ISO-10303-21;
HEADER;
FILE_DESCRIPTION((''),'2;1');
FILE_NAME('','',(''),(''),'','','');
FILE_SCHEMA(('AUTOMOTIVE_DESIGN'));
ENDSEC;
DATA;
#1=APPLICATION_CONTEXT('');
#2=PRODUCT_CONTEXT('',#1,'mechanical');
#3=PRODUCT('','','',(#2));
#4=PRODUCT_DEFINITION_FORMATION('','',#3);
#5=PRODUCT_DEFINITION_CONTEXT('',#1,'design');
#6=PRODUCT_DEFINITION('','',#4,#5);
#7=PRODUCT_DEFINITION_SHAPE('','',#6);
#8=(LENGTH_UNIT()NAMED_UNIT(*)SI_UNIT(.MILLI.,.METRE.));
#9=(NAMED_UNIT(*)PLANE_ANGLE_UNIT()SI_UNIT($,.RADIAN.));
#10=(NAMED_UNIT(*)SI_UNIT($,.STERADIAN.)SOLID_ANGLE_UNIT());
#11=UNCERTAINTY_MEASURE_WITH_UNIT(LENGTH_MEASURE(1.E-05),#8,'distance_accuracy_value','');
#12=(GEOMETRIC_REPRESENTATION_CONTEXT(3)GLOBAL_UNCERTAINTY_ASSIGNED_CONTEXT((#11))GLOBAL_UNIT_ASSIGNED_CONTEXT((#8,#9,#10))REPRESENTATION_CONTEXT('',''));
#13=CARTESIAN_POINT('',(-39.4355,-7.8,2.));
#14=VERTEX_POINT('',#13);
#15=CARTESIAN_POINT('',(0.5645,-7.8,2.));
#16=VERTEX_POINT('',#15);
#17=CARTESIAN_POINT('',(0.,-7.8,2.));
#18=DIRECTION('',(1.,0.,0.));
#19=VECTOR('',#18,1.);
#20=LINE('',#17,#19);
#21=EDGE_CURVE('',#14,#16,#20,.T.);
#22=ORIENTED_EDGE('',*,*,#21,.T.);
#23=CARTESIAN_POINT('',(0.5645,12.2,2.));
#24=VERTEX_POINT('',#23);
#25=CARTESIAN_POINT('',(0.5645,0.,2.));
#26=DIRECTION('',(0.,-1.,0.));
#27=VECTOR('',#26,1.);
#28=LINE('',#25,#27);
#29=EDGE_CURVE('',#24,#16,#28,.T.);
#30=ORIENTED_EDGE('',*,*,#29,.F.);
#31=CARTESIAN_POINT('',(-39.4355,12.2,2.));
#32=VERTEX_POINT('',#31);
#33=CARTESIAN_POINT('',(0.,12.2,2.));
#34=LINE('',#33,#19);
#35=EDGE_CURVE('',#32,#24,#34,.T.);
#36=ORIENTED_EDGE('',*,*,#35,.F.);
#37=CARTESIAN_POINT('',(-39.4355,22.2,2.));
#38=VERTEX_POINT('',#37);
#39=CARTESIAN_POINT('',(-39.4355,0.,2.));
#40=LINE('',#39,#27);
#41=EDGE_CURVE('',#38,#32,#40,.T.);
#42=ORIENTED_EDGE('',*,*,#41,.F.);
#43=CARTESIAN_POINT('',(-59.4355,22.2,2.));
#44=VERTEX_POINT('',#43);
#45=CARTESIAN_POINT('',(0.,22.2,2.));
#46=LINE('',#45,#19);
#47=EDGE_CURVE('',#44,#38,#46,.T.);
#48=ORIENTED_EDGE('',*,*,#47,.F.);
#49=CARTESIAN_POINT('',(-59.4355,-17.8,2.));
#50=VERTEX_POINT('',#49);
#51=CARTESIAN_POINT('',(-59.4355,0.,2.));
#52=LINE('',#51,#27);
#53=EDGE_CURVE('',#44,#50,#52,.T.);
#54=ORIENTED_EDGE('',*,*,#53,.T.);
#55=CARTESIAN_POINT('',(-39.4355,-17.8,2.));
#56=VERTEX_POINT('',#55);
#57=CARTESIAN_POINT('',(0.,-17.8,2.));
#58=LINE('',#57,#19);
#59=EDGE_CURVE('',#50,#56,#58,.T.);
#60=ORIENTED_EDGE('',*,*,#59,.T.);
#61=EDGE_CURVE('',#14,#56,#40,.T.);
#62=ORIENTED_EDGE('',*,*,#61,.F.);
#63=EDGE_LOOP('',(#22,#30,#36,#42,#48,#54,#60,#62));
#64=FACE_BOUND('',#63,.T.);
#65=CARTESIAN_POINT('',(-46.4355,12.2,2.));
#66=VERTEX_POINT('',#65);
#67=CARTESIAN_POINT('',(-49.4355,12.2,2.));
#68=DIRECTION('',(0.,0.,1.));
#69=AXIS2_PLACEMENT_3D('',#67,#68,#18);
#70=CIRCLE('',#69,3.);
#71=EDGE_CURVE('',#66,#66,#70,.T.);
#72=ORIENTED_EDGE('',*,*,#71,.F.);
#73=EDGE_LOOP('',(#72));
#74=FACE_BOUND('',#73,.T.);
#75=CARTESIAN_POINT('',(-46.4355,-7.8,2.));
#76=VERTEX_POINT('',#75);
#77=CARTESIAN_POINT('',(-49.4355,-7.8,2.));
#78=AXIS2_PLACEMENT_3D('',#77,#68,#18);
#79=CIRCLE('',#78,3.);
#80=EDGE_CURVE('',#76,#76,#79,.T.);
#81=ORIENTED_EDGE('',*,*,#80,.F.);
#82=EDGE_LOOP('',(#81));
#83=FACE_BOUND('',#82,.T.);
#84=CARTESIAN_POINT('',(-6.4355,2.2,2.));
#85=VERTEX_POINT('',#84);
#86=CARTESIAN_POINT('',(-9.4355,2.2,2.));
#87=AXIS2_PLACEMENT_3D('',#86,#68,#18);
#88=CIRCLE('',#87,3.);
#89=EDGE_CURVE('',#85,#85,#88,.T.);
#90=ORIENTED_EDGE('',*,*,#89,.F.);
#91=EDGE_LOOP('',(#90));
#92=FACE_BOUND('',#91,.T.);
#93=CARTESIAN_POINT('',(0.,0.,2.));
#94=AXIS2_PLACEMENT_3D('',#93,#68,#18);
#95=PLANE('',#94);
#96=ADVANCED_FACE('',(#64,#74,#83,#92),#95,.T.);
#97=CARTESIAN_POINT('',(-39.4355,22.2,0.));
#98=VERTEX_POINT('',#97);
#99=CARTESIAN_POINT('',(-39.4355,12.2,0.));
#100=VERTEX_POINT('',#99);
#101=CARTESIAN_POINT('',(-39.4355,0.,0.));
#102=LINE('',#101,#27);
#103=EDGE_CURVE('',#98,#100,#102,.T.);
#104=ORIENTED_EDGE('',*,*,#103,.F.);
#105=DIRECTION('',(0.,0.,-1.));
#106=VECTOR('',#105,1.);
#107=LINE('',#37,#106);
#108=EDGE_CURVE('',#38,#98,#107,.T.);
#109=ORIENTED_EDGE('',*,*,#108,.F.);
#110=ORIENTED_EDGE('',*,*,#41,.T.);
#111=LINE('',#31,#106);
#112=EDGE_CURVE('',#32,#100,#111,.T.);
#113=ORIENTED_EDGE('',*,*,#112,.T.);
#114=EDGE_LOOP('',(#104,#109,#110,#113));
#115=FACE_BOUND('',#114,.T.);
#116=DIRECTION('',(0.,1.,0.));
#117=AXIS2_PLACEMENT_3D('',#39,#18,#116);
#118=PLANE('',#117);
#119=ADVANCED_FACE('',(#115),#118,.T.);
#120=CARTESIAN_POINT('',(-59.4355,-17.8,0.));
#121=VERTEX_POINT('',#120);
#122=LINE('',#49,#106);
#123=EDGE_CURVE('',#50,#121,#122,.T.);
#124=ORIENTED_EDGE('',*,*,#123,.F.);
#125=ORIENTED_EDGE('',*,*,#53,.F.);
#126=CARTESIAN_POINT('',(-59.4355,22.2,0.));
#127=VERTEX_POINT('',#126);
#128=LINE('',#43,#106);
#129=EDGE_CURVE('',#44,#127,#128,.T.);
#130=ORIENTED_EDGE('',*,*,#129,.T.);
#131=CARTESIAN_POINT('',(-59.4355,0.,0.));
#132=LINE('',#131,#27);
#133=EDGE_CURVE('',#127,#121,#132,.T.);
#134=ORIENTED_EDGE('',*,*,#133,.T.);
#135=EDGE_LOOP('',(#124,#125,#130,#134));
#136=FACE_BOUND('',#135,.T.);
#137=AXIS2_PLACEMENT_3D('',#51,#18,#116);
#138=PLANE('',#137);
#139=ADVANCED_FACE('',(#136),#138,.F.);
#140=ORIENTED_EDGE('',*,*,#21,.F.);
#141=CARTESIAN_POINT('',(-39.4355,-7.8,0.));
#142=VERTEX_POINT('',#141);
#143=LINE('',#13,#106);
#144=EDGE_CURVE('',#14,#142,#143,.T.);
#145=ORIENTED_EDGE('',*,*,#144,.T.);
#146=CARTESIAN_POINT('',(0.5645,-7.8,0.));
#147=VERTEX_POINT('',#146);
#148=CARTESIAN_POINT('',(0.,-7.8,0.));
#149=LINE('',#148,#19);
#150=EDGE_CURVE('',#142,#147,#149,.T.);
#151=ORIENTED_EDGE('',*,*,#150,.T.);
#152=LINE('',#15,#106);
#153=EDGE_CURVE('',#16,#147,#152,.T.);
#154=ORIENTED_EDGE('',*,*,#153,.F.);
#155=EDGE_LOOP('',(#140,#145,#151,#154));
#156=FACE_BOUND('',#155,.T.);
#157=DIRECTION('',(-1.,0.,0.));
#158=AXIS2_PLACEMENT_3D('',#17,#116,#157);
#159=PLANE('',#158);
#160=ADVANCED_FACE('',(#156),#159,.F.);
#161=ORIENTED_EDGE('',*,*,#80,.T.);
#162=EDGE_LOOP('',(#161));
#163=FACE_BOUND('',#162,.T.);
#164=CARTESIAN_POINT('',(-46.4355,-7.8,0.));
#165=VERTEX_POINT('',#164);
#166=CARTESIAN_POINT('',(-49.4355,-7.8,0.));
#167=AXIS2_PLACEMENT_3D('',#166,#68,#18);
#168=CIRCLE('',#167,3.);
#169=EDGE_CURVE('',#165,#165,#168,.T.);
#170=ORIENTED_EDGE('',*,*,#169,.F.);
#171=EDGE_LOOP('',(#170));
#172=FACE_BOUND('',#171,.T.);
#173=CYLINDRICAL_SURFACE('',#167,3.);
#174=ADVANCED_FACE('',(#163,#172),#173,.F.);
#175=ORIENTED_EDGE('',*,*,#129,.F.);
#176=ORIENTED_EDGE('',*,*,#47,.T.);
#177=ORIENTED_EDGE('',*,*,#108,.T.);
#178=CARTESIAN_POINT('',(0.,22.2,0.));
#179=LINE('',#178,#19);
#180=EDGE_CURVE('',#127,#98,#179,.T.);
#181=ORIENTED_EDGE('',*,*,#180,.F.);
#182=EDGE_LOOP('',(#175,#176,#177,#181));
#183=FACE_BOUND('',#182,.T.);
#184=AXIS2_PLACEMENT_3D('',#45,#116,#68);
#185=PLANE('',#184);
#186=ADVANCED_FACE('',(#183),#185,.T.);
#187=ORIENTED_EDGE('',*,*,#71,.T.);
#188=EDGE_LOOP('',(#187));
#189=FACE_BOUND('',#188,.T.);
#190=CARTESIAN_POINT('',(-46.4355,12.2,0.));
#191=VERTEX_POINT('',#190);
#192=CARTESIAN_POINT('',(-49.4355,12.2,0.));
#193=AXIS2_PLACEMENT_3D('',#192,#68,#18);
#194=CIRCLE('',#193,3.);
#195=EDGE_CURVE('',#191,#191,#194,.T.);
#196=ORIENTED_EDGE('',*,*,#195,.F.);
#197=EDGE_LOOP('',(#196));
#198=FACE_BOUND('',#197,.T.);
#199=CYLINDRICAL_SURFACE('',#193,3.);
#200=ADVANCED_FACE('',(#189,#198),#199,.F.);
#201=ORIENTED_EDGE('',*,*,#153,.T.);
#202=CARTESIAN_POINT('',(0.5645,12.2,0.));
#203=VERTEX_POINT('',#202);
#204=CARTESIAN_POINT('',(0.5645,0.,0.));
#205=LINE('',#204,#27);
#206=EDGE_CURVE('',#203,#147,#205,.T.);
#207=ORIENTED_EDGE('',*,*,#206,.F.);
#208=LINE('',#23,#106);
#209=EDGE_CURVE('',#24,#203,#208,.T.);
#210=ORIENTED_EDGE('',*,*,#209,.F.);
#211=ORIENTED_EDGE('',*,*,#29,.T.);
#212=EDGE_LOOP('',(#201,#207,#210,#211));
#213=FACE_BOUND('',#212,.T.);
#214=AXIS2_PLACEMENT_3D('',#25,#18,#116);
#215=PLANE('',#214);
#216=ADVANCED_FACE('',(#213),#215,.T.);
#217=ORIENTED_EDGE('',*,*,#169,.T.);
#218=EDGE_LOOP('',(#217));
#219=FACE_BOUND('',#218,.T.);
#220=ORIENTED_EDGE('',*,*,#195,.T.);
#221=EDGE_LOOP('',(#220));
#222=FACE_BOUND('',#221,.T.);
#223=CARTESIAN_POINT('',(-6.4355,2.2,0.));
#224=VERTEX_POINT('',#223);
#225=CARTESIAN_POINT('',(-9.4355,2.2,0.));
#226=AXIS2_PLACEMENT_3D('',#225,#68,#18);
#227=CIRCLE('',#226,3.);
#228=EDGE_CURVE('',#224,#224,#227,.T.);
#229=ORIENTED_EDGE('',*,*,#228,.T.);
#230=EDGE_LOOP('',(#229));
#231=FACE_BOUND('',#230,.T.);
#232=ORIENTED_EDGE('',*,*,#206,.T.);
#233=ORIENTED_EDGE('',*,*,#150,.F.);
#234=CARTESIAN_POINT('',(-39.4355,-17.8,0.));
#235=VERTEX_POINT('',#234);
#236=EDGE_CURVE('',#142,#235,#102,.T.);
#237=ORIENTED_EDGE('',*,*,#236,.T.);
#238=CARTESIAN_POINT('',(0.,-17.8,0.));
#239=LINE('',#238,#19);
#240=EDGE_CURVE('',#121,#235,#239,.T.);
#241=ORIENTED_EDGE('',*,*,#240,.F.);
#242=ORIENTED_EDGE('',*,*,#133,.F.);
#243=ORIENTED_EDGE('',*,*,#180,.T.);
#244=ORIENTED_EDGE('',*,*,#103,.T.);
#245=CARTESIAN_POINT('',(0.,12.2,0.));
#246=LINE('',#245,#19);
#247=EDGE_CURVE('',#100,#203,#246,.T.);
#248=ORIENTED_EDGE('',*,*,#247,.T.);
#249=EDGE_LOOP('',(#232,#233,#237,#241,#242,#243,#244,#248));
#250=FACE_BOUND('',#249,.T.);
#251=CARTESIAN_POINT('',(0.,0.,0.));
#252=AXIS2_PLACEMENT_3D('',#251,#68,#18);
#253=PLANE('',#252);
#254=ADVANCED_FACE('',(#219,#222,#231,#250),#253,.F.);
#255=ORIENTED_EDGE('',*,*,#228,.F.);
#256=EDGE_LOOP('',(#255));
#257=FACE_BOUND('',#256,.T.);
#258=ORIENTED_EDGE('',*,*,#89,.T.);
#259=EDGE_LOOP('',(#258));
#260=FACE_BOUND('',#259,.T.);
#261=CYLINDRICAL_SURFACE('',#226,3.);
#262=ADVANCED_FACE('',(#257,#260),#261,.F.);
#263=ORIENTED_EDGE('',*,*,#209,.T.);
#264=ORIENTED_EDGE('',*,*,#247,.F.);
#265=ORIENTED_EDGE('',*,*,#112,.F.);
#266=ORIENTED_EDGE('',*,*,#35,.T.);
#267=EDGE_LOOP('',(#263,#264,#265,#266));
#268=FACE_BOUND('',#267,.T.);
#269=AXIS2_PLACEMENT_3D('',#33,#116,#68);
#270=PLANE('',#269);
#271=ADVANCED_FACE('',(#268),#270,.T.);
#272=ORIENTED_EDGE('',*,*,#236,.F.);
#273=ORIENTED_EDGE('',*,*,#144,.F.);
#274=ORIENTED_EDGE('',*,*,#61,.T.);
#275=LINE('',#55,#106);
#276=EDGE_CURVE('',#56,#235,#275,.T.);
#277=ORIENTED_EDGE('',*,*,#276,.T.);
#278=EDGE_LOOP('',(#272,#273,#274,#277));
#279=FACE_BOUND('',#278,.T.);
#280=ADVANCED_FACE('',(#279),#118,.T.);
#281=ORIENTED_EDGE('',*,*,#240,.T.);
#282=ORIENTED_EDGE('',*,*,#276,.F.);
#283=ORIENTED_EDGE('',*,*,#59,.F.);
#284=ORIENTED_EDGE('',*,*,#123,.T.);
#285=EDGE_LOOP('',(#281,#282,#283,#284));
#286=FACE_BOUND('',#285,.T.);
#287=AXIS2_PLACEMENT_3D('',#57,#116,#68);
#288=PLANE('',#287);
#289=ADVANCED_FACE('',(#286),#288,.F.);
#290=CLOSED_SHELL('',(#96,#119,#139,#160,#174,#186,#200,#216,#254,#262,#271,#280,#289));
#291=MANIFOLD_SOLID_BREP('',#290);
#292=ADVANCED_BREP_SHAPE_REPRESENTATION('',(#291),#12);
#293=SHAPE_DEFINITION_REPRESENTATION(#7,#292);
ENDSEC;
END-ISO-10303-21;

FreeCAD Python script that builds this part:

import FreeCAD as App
import Part
import Sketcher

V = App.Vector
Q = App.Units.Quantity


def add_polygon(sketch, points):
    """Adds a closed chain of lines whose ends are joined by coincident constraints."""
    first, n = sketch.GeometryCount, len(points)
    for a, b in zip(points, points[1:] + points[:1]):
        sketch.addGeometry(Part.LineSegment(App.Vector(*a, 0), App.Vector(*b, 0)), False)
    for i in range(n):
        sketch.addConstraint(Sketcher.Constraint("Coincident", first + i, 2, first + (i + 1) % n, 1))

doc = App.newDocument("Part")
params = doc.addObject("Spreadsheet::Sheet", "Params")
for row, (alias, value) in enumerate([
    ("sketch1_width", "40 mm"),
    ("sketch1_width2", "20 mm"),
    ("pad1_length", "2 mm"),
    ("sketch2_diameter", "6 mm"),
    ("pocket1_length", "2 mm"),
], start=1):
    params.set(f"A{row}", alias)
    params.set(f"B{row}", "=" + value)
    params.setAlias(f"B{row}", alias)

body = doc.addObject("PartDesign::Body", "Body")

# Sketch on XY plane
sketch1 = doc.addObject("Sketcher::SketchObject", "Sketch")
body.addObject(sketch1)
sketch1.AttachmentSupport = (doc.XY_Plane, [""])
sketch1.MapMode = "FlatFace"
add_polygon(sketch1, [(-39, -8), (1, -8), (1, 12), (-39, 12), (-39, 22), (-59, 22), (-59, -18), (-39, -18)])  # lines 0-7
sketch1.addConstraint([
    Sketcher.Constraint("Horizontal", 0),
    Sketcher.Constraint("Vertical", 1),
    Sketcher.Constraint("Horizontal", 2),
    Sketcher.Constraint("Vertical", 3),
    Sketcher.Constraint("Horizontal", 4),
    Sketcher.Constraint("Vertical", 5),
    Sketcher.Constraint("Horizontal", 6),
    Sketcher.Constraint("Vertical", 7),
    Sketcher.Constraint("Vertical", 3, 2, 6, 2),
    Sketcher.Constraint("Equal", 6, 1),
    Sketcher.Constraint("Equal", 2, 5),
    Sketcher.Constraint("Equal", 3, 7),
    Sketcher.Constraint("DistanceX", 0, 1, 0, 2, Q("40 mm")),
    Sketcher.Constraint("DistanceX", 4, 2, 4, 1, Q("20 mm")),
    Sketcher.Constraint("DistanceY", 0, 2, -1, 1, Q("7.8 mm")),
    Sketcher.Constraint("DistanceX", -1, 1, 0, 2, Q("0.5645 mm")),
])
sketch1.setExpression("Constraints[20]", "Params.sketch1_width")
sketch1.setExpression("Constraints[21]", "Params.sketch1_width2")
pad1 = doc.addObject("PartDesign::Pad", "Pad")
body.addObject(pad1)
pad1.Profile = sketch1
pad1.setExpression("Length", "Params.pad1_length")

# Sketch on XY plane
sketch2 = doc.addObject("Sketcher::SketchObject", "Sketch001")
body.addObject(sketch2)
sketch2.AttachmentSupport = (doc.XY_Plane, [""])
sketch2.MapMode = "FlatFace"
sketch2.AttachmentOffset = App.Placement(V(0, 0, 2), App.Rotation())
sketch2.addGeometry([
    Part.Circle(V(-9.4, 2.2, 0), V(0, 0, 1), 3),
    Part.Circle(V(-49.4, 12.2, 0), V(0, 0, 1), 3),
    Part.Circle(V(-49.4, -7.8, 0), V(0, 0, 1), 3),
], False)
sketch2.addConstraint([
    Sketcher.Constraint("Equal", 0, 1),
    Sketcher.Constraint("Equal", 1, 2),
    Sketcher.Constraint("Vertical", 1, 3, 2, 3),
    Sketcher.Constraint("Diameter", 0, Q("6 mm")),
    Sketcher.Constraint("DistanceX", 1, 3, 0, 3, Q("40 mm")),
    Sketcher.Constraint("DistanceY", 0, 3, 1, 3, Q("10 mm")),
    Sketcher.Constraint("DistanceY", 2, 3, 1, 3, Q("20 mm")),
    Sketcher.Constraint("DistanceY", -1, 1, 0, 3, Q("2.2 mm")),
    Sketcher.Constraint("DistanceX", 0, 3, -1, 1, Q("9.4355 mm")),
])
sketch2.setExpression("Constraints[3]", "Params.sketch2_diameter")
pocket1 = doc.addObject("PartDesign::Pocket", "Pocket")
body.addObject(pocket1)
pocket1.Profile = sketch2
pocket1.setExpression("Length", "Params.pocket1_length")

doc.recompute()
